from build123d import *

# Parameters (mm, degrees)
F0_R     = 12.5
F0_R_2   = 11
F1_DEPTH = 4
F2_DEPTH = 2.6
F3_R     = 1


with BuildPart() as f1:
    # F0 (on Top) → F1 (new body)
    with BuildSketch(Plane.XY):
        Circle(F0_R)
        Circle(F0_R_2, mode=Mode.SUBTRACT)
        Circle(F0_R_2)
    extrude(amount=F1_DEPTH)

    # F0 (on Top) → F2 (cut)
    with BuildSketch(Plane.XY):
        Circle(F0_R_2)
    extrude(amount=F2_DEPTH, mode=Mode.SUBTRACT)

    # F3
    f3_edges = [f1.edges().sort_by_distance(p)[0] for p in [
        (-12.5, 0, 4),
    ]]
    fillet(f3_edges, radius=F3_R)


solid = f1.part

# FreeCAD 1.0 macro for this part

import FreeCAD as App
import Part
import Sketcher
from FreeCAD import Vector


def edges_at(feature, points):
    """Names of the edges that pass closest to the given points."""
    edges = feature.Shape.Edges
    near = lambda p: min(range(len(edges)), key=lambda i: edges[i].distToShape(Part.Vertex(*p))[0])
    return sorted({f"Edge{near(p) + 1}" for p in points})

doc = App.newDocument("Part")
body = doc.addObject("PartDesign::Body", "Body")

# Sketch on XY plane
sketch1 = body.newObject("Sketcher::SketchObject", "Sketch")
sketch1.AttachmentSupport = (doc.getObject("XY_Plane"), [""])
sketch1.MapMode = "FlatFace"
sketch1.addGeometry(Part.Circle(Vector(0, 0, 0), Vector(0, 0, 1), 12), False)
sketch1.addConstraint(Sketcher.Constraint("Coincident", 0, 3, -1, 1))
sketch1.addConstraint(Sketcher.Constraint("Diameter", 0, 25.0))
pad1 = body.newObject("PartDesign::Pad", "Pad")
pad1.Profile = sketch1
pad1.Length = 4

# Sketch on XY plane
sketch2 = body.newObject("Sketcher::SketchObject", "Sketch001")
sketch2.AttachmentSupport = (doc.getObject("XY_Plane"), [""])
sketch2.MapMode = "FlatFace"
sketch2.addGeometry(Part.Circle(Vector(0, 0, 0), Vector(0, 0, 1), 11), False)
sketch2.addConstraint(Sketcher.Constraint("Coincident", 0, 3, -1, 1))
sketch2.addConstraint(Sketcher.Constraint("Diameter", 0, 22.0))
pocket1 = body.newObject("PartDesign::Pocket", "Pocket")
pocket1.Profile = sketch2
pocket1.Length = 2.6
pocket1.Reversed = True
doc.recompute()

fillet = body.newObject("PartDesign::Fillet", "Fillet")
fillet.Base = (pocket1, edges_at(pocket1, [(-12.5, 0, 4)]))
fillet.Radius = 1

doc.recompute()
